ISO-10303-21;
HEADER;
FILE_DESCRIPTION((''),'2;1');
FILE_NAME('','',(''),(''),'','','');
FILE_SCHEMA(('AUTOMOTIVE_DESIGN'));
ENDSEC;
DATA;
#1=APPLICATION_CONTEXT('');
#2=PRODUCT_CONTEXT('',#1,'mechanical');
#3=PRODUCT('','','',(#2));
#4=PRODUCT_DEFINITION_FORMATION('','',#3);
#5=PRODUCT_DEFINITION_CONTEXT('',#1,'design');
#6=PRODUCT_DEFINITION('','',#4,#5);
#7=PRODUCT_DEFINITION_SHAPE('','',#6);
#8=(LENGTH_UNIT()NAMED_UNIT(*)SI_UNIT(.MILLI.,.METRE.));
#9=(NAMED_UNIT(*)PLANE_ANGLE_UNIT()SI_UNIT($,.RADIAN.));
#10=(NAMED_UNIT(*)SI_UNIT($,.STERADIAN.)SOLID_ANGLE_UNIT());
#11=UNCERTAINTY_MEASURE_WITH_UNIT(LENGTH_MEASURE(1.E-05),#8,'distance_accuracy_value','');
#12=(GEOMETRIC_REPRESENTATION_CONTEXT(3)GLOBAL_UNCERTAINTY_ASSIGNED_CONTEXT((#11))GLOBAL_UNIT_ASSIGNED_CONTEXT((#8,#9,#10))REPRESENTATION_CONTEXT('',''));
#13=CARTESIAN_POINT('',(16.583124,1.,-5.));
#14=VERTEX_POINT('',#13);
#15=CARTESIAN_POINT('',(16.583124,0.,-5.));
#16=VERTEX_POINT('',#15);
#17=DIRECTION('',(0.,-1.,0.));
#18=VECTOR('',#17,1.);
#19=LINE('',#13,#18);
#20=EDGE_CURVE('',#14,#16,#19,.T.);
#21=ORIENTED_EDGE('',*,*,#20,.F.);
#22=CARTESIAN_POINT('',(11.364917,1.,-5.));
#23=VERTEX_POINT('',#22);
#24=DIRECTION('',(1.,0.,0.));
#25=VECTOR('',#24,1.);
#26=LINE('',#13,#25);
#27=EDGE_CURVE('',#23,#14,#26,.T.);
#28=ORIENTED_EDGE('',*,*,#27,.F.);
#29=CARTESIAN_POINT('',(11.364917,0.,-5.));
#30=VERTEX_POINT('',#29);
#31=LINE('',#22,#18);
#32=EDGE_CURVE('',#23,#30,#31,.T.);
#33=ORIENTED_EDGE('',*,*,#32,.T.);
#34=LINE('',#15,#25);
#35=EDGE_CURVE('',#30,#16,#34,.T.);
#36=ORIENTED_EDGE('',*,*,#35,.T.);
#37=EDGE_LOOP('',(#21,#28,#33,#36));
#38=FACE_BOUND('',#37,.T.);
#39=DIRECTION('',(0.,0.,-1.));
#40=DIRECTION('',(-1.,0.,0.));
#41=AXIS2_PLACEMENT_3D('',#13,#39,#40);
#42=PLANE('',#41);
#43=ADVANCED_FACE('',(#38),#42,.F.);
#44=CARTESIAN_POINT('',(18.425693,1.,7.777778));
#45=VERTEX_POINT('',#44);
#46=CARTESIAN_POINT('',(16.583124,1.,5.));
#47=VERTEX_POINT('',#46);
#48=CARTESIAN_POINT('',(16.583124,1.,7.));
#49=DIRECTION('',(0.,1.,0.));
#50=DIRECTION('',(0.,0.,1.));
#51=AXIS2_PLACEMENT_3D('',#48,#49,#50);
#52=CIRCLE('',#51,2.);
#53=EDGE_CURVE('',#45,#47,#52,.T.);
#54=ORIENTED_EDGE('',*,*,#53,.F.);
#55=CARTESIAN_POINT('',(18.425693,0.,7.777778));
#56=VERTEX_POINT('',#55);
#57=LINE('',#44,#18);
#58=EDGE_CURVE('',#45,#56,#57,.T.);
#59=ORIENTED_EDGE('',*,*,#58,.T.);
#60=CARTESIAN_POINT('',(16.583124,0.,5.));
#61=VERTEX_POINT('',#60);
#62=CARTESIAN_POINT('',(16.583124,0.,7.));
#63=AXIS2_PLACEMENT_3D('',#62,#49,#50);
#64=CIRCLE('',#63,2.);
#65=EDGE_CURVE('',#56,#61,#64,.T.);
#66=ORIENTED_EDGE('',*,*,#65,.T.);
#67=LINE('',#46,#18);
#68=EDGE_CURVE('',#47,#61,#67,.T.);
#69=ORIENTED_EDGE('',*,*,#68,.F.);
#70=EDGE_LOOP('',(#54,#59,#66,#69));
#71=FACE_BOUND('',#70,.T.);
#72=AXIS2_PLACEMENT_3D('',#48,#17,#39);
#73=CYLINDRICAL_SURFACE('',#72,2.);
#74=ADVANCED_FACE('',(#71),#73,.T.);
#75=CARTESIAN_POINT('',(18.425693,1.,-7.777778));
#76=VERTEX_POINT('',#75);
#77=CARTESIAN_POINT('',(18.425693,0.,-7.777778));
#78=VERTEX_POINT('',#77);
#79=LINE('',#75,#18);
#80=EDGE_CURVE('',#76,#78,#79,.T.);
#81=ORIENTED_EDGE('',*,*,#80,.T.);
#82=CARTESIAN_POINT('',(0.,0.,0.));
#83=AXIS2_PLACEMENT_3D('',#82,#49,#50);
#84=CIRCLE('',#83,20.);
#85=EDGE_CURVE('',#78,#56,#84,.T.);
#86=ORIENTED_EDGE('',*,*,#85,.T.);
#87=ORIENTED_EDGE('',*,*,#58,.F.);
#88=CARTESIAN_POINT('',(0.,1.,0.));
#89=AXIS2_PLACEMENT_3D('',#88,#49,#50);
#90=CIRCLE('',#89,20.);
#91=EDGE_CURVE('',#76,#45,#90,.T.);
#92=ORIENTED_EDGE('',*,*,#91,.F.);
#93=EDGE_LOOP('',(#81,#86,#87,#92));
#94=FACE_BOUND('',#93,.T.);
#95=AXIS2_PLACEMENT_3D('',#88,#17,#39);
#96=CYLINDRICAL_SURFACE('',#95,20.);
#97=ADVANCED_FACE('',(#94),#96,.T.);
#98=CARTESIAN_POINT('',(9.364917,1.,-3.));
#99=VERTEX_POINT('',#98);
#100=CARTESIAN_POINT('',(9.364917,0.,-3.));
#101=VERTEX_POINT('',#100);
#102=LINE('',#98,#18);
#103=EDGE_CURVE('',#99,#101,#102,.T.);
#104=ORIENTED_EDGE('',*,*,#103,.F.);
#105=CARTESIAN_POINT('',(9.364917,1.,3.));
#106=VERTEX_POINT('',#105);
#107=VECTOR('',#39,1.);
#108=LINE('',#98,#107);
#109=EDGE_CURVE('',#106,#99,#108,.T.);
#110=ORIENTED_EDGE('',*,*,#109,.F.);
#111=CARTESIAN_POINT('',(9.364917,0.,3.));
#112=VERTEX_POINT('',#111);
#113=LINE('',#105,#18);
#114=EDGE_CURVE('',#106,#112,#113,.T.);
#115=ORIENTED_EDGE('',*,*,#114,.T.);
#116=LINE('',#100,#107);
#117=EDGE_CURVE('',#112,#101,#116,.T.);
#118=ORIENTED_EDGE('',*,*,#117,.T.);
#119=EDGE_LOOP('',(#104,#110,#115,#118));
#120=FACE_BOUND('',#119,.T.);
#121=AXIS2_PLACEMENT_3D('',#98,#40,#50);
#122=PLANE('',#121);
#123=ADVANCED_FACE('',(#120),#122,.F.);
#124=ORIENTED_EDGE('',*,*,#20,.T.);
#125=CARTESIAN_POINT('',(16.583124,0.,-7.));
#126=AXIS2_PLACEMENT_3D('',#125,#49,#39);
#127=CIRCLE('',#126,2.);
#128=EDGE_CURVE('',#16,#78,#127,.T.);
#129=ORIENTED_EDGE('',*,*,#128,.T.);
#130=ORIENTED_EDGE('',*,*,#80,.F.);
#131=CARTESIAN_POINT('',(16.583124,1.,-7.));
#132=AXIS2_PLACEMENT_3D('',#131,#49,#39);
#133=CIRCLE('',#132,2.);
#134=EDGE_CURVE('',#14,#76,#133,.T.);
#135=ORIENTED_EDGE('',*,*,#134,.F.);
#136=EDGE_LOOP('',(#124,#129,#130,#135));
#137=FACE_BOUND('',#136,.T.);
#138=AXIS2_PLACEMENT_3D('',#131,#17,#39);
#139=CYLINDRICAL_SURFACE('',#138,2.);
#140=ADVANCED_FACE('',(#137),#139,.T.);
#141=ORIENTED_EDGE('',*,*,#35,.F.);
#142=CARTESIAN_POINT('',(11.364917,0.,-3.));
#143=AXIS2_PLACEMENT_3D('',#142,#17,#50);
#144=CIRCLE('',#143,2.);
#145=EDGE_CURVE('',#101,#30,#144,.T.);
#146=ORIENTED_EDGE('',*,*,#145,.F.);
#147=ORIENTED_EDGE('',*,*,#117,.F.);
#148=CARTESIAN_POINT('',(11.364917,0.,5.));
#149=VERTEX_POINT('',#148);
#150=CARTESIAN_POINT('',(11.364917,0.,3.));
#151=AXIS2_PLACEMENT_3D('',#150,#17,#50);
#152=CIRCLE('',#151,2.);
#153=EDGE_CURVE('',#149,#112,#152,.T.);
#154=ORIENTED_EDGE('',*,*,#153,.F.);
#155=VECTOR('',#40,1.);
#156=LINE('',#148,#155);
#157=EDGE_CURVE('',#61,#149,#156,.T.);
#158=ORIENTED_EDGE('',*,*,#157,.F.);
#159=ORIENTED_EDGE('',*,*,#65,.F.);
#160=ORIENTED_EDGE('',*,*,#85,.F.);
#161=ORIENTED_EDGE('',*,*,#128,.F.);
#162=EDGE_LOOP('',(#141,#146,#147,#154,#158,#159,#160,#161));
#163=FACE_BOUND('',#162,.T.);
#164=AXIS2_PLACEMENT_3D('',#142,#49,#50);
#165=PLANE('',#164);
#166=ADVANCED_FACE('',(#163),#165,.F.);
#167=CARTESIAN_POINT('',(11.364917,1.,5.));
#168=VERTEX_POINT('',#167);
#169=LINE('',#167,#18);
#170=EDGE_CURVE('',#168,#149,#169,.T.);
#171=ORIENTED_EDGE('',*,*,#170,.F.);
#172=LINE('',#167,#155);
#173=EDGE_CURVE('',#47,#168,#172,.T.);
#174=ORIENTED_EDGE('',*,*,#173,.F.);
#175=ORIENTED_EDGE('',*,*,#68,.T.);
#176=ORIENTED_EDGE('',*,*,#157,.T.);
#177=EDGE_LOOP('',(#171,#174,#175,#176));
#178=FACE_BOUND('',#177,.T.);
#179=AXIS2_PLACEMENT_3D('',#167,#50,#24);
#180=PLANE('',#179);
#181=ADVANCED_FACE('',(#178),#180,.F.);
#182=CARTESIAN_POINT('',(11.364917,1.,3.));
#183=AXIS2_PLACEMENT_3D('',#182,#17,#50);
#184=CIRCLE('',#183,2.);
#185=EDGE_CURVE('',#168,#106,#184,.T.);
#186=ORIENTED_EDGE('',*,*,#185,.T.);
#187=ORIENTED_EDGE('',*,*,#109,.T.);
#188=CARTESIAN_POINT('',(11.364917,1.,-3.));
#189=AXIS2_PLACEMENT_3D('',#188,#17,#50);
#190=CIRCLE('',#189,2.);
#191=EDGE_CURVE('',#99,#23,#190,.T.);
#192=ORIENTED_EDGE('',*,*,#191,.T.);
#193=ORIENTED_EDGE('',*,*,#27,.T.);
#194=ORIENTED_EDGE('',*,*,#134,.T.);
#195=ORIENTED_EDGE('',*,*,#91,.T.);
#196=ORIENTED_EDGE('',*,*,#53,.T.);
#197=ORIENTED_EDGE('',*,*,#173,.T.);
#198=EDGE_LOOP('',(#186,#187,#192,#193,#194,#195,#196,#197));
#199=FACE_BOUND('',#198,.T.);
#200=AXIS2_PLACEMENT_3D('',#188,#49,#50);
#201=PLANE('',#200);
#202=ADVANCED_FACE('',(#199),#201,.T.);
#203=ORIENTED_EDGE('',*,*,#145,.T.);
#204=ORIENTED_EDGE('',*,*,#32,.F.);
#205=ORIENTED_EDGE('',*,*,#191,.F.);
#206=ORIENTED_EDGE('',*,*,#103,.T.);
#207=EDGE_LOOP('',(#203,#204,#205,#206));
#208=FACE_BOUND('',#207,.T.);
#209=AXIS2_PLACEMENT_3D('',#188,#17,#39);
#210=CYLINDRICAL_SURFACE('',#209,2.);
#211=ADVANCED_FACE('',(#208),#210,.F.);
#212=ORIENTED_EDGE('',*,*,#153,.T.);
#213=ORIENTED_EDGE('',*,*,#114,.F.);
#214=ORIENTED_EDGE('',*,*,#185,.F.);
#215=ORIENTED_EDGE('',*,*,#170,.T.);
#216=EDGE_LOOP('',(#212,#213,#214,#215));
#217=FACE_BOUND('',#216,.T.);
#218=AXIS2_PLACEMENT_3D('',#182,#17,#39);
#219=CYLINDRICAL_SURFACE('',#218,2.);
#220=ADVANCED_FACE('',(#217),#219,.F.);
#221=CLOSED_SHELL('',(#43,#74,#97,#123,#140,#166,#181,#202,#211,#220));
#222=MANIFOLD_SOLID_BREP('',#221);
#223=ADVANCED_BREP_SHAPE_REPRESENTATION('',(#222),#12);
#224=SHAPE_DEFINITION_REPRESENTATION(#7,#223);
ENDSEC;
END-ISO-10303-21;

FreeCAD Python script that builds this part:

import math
import FreeCAD as App
import Part
import Sketcher

V = App.Vector

doc = App.newDocument("Part")
body = doc.addObject("PartDesign::Body", "Body")

# Sketch on XZ plane
sketch1 = body.newObject("Sketcher::SketchObject", "Sketch")
sketch1.AttachmentSupport = (doc.getObject("XZ_Plane"), [""])
sketch1.MapMode = "FlatFace"
sketch1.addGeometry([
    Part.LineSegment(V(11.4, -5, 0), V(16.6, -5, 0)),  # 0
    Part.ArcOfCircle(Part.Circle(V(16.6, -7, 0), V(0, 0, 1), 2), math.radians(-23), math.radians(90)),  # 1
    Part.ArcOfCircle(Part.Circle(V(0, 0, 0), V(0, 0, 1), 20), math.radians(23), math.radians(337)),  # 2
    Part.ArcOfCircle(Part.Circle(V(16.6, 7, 0), V(0, 0, 1), 2), math.radians(-90), math.radians(23)),  # 3
    Part.LineSegment(V(16.6, 5, 0), V(11.4, 5, 0)),  # 4
    Part.ArcOfCircle(Part.Circle(V(11.4, 3, 0), V(0, 0, 1), 2), math.radians(90), math.radians(180)),  # 5
    Part.LineSegment(V(9.4, 3, 0), V(9.4, -3, 0)),  # 6
    Part.ArcOfCircle(Part.Circle(V(11.4, -3, 0), V(0, 0, 1), 2), math.radians(-180), math.radians(-90)),  # 7
], False)
sketch1.addConstraint([
    Sketcher.Constraint("Tangent", 0, 2, 1, 2),
    Sketcher.Constraint("Tangent", 1, 1, 2, 2),
    Sketcher.Constraint("Tangent", 2, 1, 3, 2),
    Sketcher.Constraint("Tangent", 3, 1, 4, 1),
    Sketcher.Constraint("Tangent", 4, 2, 5, 1),
    Sketcher.Constraint("Tangent", 5, 2, 6, 1),
    Sketcher.Constraint("Tangent", 6, 2, 7, 1),
    Sketcher.Constraint("Tangent", 7, 2, 0, 1),
    Sketcher.Constraint("Horizontal", 0),
    Sketcher.Constraint("Horizontal", 4),
    Sketcher.Constraint("Vertical", 6),
    Sketcher.Constraint("Coincident", 2, 3, -1, 1),
    Sketcher.Constraint("Equal", 1, 3),
    Sketcher.Constraint("Equal", 3, 5),
    Sketcher.Constraint("Equal", 5, 7),
    Sketcher.Constraint("Vertical", 1, 3, 3, 3),
    Sketcher.Constraint("Radius", 1, 2.0),
    Sketcher.Constraint("Radius", 2, 20.0),
    Sketcher.Constraint("DistanceY", 6, 2, 6, 1, 6.0),
    Sketcher.Constraint("DistanceX", 0, 1, 0, 2, 5.218207),
])
pad1 = body.newObject("PartDesign::Pad", "Pad")
pad1.Profile = sketch1
pad1.Length = 1
pad1.Reversed = True

doc.recompute()
